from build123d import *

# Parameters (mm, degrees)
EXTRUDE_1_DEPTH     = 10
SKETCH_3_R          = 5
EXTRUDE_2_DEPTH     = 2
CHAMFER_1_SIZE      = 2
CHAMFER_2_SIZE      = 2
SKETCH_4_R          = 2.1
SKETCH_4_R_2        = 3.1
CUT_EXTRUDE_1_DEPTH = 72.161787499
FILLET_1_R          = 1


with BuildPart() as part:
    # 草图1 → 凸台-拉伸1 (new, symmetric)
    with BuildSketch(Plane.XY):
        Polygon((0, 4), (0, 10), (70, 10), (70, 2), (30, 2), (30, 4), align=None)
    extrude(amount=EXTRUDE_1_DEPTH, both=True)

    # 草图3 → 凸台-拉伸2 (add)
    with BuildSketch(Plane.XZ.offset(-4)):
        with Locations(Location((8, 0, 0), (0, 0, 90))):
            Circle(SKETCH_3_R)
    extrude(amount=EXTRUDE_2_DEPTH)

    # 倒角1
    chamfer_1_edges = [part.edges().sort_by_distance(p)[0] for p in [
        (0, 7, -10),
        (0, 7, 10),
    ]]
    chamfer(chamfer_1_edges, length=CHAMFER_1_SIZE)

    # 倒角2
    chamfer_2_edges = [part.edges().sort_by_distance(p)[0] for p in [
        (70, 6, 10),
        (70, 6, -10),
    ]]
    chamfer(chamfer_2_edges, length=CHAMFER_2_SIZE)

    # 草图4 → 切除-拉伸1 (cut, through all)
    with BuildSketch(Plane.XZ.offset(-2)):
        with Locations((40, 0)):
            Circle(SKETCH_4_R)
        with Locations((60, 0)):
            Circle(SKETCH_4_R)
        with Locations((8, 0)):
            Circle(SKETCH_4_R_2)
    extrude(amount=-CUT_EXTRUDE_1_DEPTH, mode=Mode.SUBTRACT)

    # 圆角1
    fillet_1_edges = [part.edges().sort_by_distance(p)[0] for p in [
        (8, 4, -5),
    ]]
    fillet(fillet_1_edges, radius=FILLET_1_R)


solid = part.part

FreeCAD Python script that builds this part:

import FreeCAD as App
import Part
import Sketcher
from FreeCAD import Vector


def edges_at(feature, points):
    """Names of the edges that pass closest to the given points."""
    edges = feature.Shape.Edges
    near = lambda p: min(range(len(edges)), key=lambda i: edges[i].distToShape(Part.Vertex(*p))[0])
    return sorted({f"Edge{near(p) + 1}" for p in points})

doc = App.newDocument("Part")
body = doc.addObject("PartDesign::Body", "Body")

sketch1 = body.newObject("Sketcher::SketchObject", "Sketch")
sketch1.AttachmentSupport = (doc.getObject("XY_Plane"), [""])
sketch1.MapMode = "FlatFace"
sketch1.addGeometry(Part.LineSegment(Vector(0, 10, 0), Vector(0, 4, 0)), False)
sketch1.addGeometry(Part.LineSegment(Vector(0, 4, 0), Vector(30, 4, 0)), False)
sketch1.addGeometry(Part.LineSegment(Vector(30, 4, 0), Vector(30, 2, 0)), False)
sketch1.addGeometry(Part.LineSegment(Vector(30, 2, 0), Vector(70, 2, 0)), False)
sketch1.addGeometry(Part.LineSegment(Vector(70, 2, 0), Vector(70, 10, 0)), False)
sketch1.addGeometry(Part.LineSegment(Vector(70, 10, 0), Vector(0, 10, 0)), False)
sketch1.addConstraint(Sketcher.Constraint("Coincident", 0, 2, 1, 1))
sketch1.addConstraint(Sketcher.Constraint("Coincident", 1, 2, 2, 1))
sketch1.addConstraint(Sketcher.Constraint("Coincident", 2, 2, 3, 1))
sketch1.addConstraint(Sketcher.Constraint("Coincident", 3, 2, 4, 1))
sketch1.addConstraint(Sketcher.Constraint("Coincident", 4, 2, 5, 1))
sketch1.addConstraint(Sketcher.Constraint("Coincident", 5, 2, 0, 1))
sketch1.addConstraint(Sketcher.Constraint("Vertical", 0))
sketch1.addConstraint(Sketcher.Constraint("Horizontal", 1))
sketch1.addConstraint(Sketcher.Constraint("Vertical", 2))
sketch1.addConstraint(Sketcher.Constraint("Horizontal", 3))
sketch1.addConstraint(Sketcher.Constraint("Vertical", 4))
sketch1.addConstraint(Sketcher.Constraint("Horizontal", 5))
sketch1.addConstraint(Sketcher.Constraint("PointOnObject", 0, 2, -2))
sketch1.addConstraint(Sketcher.Constraint("DistanceX", 1, 1, 1, 2, 30.0))
sketch1.addConstraint(Sketcher.Constraint("DistanceX", 3, 1, 3, 2, 40.0))
sketch1.addConstraint(Sketcher.Constraint("DistanceY", 0, 2, 0, 1, 6.0))
sketch1.addConstraint(Sketcher.Constraint("DistanceY", 2, 2, 2, 1, 2.0))
sketch1.addConstraint(Sketcher.Constraint("DistanceY", -1, 1, 0, 2, 4.0))
pad1 = body.newObject("PartDesign::Pad", "Pad")
pad1.Profile = sketch1
pad1.Length = 20
pad1.Midplane = True

sketch2 = body.newObject("Sketcher::SketchObject", "Sketch001")
sketch2.AttachmentSupport = (doc.getObject("XZ_Plane"), [""])
sketch2.MapMode = "FlatFace"
sketch2.AttachmentOffset = App.Placement(Vector(0, 0, -4), App.Rotation())
sketch2.addGeometry(Part.Circle(Vector(8, 0, 0), Vector(0, 0, 1), 5), False)
sketch2.addConstraint(Sketcher.Constraint("PointOnObject", 0, 3, -1))
sketch2.addConstraint(Sketcher.Constraint("Diameter", 0, 10.0))
sketch2.addConstraint(Sketcher.Constraint("DistanceX", -1, 1, 0, 3, 8.0))
pad2 = body.newObject("PartDesign::Pad", "Pad001")
pad2.Profile = sketch2
pad2.Length = 2
doc.recompute()

chamfer = body.newObject("PartDesign::Chamfer", "Chamfer")
chamfer.Base = (pad2, edges_at(pad2, [(0, 7, -10), (0, 7, 10)]))
chamfer.Size = 2
doc.recompute()

chamfer2 = body.newObject("PartDesign::Chamfer", "Chamfer001")
chamfer2.Base = (chamfer, edges_at(chamfer, [(70, 6, 10), (70, 6, -10)]))
chamfer2.Size = 2

sketch3 = body.newObject("Sketcher::SketchObject", "Sketch002")
sketch3.AttachmentSupport = (doc.getObject("XZ_Plane"), [""])
sketch3.MapMode = "FlatFace"
sketch3.AttachmentOffset = App.Placement(Vector(0, 0, -2), App.Rotation())
sketch3.addGeometry(Part.Circle(Vector(40, 0, 0), Vector(0, 0, 1), 2.1), False)
sketch3.addGeometry(Part.Circle(Vector(60, 0, 0), Vector(0, 0, 1), 2.1), False)
sketch3.addGeometry(Part.Circle(Vector(8, 0, 0), Vector(0, 0, 1), 3.1), False)
sketch3.addConstraint(Sketcher.Constraint("Equal", 0, 1))
sketch3.addConstraint(Sketcher.Constraint("PointOnObject", 0, 3, -1))
sketch3.addConstraint(Sketcher.Constraint("PointOnObject", 1, 3, -1))
sketch3.addConstraint(Sketcher.Constraint("PointOnObject", 2, 3, -1))
sketch3.addConstraint(Sketcher.Constraint("Diameter", 0, 4.2))
sketch3.addConstraint(Sketcher.Constraint("Diameter", 2, 6.2))
sketch3.addConstraint(Sketcher.Constraint("DistanceX", -1, 1, 0, 3, 40.0))
sketch3.addConstraint(Sketcher.Constraint("DistanceX", -1, 1, 1, 3, 60.0))
sketch3.addConstraint(Sketcher.Constraint("DistanceX", -1, 1, 2, 3, 8.0))
pocket1 = body.newObject("PartDesign::Pocket", "Pocket")
pocket1.Profile = sketch3
pocket1.Type = "ThroughAll"
doc.recompute()

fillet = body.newObject("PartDesign::Fillet", "Fillet")
fillet.Base = (pocket1, edges_at(pocket1, [(8, 4, -5)]))
fillet.Radius = 1

doc.recompute()
